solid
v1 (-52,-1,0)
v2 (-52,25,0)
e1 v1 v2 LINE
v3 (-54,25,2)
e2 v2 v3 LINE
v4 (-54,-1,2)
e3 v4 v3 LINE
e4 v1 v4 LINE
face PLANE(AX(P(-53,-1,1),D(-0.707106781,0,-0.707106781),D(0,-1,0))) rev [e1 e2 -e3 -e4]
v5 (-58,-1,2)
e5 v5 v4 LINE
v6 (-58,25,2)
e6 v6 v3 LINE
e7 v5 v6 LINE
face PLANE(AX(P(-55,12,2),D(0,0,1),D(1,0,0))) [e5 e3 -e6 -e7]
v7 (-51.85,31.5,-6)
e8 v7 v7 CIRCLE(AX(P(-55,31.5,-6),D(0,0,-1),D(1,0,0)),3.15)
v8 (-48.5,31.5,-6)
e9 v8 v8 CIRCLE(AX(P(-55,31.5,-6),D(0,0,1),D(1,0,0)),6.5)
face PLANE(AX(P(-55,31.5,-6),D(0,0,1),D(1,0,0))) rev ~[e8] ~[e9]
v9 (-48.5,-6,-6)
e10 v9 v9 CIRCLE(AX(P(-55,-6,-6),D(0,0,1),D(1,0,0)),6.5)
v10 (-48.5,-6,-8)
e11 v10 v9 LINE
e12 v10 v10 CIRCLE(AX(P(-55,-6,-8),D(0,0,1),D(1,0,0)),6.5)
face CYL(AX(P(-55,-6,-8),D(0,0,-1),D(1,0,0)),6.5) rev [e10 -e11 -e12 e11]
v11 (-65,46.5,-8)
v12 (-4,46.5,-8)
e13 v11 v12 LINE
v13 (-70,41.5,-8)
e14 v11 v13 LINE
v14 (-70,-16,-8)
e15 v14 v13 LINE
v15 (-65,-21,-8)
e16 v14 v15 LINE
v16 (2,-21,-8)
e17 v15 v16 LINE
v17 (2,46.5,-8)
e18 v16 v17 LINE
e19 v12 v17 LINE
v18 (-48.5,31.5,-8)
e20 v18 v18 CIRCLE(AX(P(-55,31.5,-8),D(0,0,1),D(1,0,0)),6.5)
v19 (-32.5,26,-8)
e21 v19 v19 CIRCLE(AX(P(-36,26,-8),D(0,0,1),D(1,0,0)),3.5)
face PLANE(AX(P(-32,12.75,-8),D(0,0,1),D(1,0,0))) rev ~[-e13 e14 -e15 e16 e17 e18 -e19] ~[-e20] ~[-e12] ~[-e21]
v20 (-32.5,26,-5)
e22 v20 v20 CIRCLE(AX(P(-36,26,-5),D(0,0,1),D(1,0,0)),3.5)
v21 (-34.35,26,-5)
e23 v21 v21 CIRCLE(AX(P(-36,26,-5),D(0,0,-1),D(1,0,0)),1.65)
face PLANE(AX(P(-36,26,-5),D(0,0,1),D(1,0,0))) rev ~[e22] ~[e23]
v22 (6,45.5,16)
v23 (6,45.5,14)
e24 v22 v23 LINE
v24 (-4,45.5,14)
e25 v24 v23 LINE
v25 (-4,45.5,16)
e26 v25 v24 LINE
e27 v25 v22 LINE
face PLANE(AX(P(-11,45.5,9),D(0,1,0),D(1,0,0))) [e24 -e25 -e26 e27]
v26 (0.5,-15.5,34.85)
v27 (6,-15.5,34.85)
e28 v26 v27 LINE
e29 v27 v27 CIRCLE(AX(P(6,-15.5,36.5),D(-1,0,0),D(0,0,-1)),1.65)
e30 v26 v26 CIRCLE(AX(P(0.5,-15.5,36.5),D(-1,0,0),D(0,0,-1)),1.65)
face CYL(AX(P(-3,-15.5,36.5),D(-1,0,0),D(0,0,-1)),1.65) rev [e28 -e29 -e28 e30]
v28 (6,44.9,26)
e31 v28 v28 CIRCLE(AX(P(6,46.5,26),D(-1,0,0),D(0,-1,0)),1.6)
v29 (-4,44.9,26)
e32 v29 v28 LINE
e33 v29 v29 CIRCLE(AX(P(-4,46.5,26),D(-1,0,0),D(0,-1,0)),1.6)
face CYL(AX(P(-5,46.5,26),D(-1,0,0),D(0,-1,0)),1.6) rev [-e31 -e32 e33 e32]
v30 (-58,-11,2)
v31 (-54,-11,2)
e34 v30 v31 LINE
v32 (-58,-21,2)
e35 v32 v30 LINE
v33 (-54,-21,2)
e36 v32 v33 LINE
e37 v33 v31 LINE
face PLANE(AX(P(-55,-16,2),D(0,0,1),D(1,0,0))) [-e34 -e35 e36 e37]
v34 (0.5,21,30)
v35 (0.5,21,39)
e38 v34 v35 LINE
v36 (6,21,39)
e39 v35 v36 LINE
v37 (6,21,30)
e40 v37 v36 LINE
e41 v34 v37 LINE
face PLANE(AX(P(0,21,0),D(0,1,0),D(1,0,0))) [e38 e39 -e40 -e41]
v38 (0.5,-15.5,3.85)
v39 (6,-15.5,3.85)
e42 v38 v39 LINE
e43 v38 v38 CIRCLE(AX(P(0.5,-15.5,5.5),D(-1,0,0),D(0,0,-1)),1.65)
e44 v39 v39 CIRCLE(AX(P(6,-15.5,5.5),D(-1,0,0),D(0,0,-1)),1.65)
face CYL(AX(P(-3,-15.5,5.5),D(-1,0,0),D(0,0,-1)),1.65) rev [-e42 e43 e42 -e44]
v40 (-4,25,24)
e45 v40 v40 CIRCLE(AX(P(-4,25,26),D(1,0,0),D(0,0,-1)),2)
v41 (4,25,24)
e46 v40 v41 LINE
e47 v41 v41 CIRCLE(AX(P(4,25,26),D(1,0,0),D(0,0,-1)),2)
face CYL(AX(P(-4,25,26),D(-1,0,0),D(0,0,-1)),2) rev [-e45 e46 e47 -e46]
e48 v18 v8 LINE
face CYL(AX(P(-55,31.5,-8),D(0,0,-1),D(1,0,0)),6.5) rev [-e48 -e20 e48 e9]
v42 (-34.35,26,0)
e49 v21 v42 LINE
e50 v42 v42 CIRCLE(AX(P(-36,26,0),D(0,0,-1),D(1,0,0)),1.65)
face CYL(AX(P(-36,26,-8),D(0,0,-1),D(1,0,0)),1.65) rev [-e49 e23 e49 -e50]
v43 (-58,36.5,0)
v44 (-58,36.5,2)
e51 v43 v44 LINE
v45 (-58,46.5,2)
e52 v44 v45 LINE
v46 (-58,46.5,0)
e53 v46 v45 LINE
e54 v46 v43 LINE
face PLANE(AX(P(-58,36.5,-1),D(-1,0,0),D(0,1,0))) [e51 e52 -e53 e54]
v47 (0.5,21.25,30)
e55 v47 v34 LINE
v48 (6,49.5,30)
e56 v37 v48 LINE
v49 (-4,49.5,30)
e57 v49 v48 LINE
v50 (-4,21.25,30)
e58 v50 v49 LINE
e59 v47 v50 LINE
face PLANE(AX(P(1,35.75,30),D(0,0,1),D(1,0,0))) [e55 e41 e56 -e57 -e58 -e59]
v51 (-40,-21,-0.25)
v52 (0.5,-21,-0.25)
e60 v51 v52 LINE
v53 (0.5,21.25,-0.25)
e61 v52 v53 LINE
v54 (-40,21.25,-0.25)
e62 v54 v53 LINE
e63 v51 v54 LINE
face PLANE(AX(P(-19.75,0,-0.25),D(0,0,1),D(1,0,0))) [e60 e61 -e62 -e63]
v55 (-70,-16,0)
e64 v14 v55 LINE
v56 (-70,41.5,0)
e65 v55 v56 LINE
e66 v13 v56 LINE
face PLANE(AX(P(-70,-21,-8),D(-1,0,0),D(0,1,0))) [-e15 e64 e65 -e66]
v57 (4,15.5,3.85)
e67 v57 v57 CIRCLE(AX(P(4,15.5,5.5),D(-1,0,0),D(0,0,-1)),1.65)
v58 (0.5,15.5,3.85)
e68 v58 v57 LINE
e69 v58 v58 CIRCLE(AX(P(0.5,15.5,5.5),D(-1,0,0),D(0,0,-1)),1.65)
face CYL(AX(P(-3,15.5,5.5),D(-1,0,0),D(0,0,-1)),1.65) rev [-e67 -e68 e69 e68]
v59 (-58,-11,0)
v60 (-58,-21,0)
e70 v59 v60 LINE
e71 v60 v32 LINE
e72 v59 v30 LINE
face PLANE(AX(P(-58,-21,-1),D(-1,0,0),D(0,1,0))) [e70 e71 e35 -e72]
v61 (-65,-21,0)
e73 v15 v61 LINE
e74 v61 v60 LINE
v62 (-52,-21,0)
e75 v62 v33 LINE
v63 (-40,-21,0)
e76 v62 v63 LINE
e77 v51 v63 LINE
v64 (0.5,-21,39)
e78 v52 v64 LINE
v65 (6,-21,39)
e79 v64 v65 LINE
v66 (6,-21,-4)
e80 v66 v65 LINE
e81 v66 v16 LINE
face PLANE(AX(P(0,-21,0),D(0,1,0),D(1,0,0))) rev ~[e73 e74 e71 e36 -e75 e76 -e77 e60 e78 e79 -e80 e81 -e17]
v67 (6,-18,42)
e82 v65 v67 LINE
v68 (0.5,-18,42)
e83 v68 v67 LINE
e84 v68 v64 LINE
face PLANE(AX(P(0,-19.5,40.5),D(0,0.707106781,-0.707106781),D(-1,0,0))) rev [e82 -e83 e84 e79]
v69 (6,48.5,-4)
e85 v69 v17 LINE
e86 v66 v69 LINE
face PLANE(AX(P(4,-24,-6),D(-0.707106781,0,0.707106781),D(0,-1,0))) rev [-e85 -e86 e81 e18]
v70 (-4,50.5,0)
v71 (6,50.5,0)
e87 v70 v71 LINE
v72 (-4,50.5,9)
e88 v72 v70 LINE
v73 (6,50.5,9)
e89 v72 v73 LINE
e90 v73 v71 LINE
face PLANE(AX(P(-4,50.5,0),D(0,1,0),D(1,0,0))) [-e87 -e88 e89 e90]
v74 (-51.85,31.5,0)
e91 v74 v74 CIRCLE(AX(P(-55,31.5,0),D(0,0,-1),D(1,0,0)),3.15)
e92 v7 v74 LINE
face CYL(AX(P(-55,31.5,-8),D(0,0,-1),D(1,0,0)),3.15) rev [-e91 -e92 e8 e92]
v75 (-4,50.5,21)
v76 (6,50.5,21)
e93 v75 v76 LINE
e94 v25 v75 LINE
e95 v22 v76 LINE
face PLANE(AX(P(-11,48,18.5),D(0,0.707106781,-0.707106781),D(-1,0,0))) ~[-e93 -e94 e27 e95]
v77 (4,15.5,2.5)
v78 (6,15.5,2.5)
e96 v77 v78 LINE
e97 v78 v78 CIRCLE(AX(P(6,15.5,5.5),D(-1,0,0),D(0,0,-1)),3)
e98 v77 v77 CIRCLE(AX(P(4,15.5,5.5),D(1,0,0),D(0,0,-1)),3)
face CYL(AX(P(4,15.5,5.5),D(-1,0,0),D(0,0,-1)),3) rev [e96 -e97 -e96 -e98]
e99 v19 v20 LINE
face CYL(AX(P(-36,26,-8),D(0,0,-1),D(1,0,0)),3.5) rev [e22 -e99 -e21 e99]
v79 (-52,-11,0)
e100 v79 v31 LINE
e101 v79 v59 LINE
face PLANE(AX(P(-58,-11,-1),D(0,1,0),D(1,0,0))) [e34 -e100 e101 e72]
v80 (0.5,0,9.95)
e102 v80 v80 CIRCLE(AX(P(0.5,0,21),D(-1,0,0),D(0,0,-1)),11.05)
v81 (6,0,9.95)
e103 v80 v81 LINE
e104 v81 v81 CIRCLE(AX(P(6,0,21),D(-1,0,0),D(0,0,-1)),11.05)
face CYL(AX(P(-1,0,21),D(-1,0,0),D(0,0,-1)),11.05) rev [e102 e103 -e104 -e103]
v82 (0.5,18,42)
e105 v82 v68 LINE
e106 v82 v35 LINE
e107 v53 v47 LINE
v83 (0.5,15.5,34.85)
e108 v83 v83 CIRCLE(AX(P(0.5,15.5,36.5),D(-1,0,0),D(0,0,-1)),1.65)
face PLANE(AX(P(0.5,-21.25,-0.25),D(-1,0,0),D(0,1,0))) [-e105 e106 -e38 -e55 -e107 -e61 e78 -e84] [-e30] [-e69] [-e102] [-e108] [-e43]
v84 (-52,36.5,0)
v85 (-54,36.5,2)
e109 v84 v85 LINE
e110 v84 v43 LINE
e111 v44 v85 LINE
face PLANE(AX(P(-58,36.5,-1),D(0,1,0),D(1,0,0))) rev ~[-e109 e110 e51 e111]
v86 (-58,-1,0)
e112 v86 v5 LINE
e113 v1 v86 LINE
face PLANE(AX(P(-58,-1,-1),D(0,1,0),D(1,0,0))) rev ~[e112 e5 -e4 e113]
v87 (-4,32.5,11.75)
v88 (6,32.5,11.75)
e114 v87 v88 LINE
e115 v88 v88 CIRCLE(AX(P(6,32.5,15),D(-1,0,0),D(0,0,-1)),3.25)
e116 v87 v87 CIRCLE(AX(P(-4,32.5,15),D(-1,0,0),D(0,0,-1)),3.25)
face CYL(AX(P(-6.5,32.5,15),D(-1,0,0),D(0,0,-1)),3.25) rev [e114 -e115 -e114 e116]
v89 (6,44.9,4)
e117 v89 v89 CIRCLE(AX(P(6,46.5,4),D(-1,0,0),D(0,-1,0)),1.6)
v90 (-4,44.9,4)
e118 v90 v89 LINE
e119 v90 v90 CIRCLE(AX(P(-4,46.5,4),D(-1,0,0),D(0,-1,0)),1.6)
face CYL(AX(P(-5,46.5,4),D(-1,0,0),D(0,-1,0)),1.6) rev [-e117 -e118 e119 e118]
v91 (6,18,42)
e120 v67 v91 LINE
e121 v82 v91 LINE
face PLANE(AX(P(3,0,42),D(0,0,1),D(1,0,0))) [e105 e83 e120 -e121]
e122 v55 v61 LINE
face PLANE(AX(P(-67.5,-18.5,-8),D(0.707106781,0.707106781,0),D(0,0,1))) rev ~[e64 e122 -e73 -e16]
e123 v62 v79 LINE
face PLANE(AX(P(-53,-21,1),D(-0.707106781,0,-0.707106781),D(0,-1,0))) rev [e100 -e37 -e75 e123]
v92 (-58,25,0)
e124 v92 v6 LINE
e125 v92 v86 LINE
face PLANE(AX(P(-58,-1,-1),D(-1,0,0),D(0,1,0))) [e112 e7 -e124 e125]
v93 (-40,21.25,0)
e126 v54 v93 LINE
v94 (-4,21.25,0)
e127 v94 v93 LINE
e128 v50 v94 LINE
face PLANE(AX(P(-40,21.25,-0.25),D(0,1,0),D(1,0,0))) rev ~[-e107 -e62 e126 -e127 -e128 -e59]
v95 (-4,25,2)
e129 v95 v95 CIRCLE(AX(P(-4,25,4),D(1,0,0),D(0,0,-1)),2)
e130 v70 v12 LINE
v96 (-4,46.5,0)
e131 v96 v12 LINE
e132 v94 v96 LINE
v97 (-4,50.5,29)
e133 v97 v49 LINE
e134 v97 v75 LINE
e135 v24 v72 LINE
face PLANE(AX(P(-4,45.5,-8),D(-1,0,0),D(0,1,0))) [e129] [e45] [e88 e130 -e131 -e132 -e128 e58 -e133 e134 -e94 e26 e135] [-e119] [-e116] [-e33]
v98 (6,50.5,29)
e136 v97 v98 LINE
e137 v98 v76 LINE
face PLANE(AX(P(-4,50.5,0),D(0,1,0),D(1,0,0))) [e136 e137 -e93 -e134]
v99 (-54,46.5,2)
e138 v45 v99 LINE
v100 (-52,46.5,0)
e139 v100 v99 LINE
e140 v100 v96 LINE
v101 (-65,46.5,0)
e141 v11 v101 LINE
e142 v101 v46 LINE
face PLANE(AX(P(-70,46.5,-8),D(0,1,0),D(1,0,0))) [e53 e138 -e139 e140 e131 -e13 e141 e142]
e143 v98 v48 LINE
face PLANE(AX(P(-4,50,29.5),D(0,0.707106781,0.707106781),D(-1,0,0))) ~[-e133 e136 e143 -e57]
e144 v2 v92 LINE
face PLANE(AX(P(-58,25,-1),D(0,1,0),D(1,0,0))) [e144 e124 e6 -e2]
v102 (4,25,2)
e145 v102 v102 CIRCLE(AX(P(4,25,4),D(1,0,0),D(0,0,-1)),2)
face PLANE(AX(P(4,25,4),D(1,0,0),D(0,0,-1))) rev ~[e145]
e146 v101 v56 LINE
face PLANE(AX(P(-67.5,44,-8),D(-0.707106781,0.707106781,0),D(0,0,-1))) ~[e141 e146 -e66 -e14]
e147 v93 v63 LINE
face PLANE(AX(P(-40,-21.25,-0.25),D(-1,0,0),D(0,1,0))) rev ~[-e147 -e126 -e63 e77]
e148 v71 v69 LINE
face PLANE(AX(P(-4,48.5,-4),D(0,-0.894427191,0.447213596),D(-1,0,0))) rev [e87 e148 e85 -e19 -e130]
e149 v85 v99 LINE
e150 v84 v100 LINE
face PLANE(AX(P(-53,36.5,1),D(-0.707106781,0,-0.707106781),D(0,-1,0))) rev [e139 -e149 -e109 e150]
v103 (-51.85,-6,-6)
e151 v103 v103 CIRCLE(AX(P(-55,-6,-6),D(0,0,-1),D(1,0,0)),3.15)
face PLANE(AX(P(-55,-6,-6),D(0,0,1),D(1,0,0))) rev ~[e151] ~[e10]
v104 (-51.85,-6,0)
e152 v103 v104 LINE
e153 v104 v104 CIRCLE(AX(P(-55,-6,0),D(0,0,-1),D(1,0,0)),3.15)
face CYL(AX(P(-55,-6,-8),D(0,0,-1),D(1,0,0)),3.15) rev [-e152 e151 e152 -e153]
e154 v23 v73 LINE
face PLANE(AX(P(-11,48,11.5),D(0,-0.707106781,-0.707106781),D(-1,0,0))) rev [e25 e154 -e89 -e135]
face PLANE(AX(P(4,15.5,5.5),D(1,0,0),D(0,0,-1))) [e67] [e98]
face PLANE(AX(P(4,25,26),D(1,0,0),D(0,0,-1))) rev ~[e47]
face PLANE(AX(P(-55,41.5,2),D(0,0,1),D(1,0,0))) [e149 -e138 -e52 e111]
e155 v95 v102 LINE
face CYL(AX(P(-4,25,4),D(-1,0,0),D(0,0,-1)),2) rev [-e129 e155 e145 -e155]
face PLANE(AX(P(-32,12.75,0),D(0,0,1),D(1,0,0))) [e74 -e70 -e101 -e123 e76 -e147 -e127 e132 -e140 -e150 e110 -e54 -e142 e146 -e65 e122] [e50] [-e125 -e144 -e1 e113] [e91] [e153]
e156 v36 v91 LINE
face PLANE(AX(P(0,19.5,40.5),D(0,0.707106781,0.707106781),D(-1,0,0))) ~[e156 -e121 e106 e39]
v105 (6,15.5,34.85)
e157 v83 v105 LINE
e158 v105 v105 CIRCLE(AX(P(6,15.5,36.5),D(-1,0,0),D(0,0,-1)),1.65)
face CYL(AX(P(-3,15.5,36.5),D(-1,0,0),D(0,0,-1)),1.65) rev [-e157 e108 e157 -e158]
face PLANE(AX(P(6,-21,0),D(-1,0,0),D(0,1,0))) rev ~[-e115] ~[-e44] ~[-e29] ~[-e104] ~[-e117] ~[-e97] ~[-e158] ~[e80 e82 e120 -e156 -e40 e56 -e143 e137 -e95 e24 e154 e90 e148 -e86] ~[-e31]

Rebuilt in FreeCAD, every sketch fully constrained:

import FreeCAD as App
import Part
import Sketcher

V = App.Vector
Q = App.Units.Quantity


def edges_at(feature, points):
    """Names of the edges that pass closest to the given points."""
    edges = feature.Shape.Edges
    near = lambda p: min(range(len(edges)), key=lambda i: edges[i].distToShape(Part.Vertex(*p))[0])
    return sorted({f"Edge{near(p) + 1}" for p in points})

doc = App.newDocument("Part")
body = doc.addObject("PartDesign::Body", "Body")

sketch1 = body.newObject("Sketcher::SketchObject", "Sketch")
sketch1.AttachmentSupport = (doc.getObject("XY_Plane"), [""])
sketch1.MapMode = "FlatFace"
sketch1.AttachmentOffset = App.Placement(V(0, 0, 9), App.Rotation())
sketch1.addGeometry([
    Part.LineSegment(V(-16, 95, 0), V(-16, 67, 0)),
    Part.LineSegment(V(-16, 67, 0), V(3, 67, 0)),
    Part.LineSegment(V(3, 67, 0), V(3, 95, 0)),
    Part.LineSegment(V(3, 95, 0), V(-16, 95, 0)),
], False)
sketch1.addConstraint([
    Sketcher.Constraint("Coincident", 0, 2, 1, 1),
    Sketcher.Constraint("Coincident", 1, 2, 2, 1),
    Sketcher.Constraint("Coincident", 2, 2, 3, 1),
    Sketcher.Constraint("Coincident", 3, 2, 0, 1),
    Sketcher.Constraint("Vertical", 0),
    Sketcher.Constraint("Horizontal", 1),
    Sketcher.Constraint("Vertical", 2),
    Sketcher.Constraint("Horizontal", 3),
    Sketcher.Constraint("DistanceX", 1, 1, 1, 2, Q("19 mm")),
    Sketcher.Constraint("DistanceY", 0, 2, 0, 1, Q("28 mm")),
    Sketcher.Constraint("DistanceX", 0, 2, -1, 1, Q("16 mm")),
    Sketcher.Constraint("DistanceY", -1, 1, 0, 2, Q("67 mm")),
])
pad1 = body.newObject("PartDesign::Pad", "Pad")
pad1.Profile = sketch1
pad1.Length = 12
doc.recompute()

chamfer = body.newObject("PartDesign::Chamfer", "Chamfer")
chamfer.Base = (pad1, edges_at(pad1, [(-6.5, 67, 9), (-6.5, 67, 21)]))
chamfer.Size = 5
body2 = doc.addObject("PartDesign::Body", "Body001")
doc.recompute()

body.Placement = App.Placement(V(5, -21.5, 0), App.Rotation(V(0, 0, 1), 0))
boolean = body2.newObject("PartDesign::Boolean", "Boolean")
boolean.Type = "Fuse"
boolean.addObjects([body])
body3 = doc.addObject("PartDesign::Body", "Body002")

sketch2 = body3.newObject("Sketcher::SketchObject", "Sketch001")
sketch2.AttachmentSupport = (doc.getObject("XY_Plane002"), [""])
sketch2.MapMode = "FlatFace"
sketch2.AttachmentOffset = App.Placement(V(0, 0, -8), App.Rotation())
sketch2.addGeometry(Part.Circle(V(-36, 26, 0), V(0, 0, 1), 3.5), False)
sketch2.addConstraint([
    Sketcher.Constraint("Diameter", 0, Q("7 mm")),
    Sketcher.Constraint("DistanceX", 0, 3, -1, 1, Q("36 mm")),
    Sketcher.Constraint("DistanceY", -1, 1, 0, 3, Q("26 mm")),
])
pad2 = body3.newObject("PartDesign::Pad", "Pad001")
pad2.Profile = sketch2
pad2.Length = 3
body4 = doc.addObject("PartDesign::Body", "Body003")

sketch3 = body4.newObject("Sketcher::SketchObject", "Sketch002")
sketch3.AttachmentSupport = (doc.getObject("XY_Plane003"), [""])
sketch3.MapMode = "FlatFace"
sketch3.AttachmentOffset = App.Placement(V(0, 0, -8), App.Rotation())
sketch3.addGeometry(Part.Circle(V(-36, 26, 0), V(0, 0, 1), 1.65), False)
sketch3.addConstraint([
    Sketcher.Constraint("Diameter", 0, Q("3.3 mm")),
    Sketcher.Constraint("DistanceX", 0, 3, -1, 1, Q("36 mm")),
    Sketcher.Constraint("DistanceY", -1, 1, 0, 3, Q("26 mm")),
])
pad3 = body4.newObject("PartDesign::Pad", "Pad002")
pad3.Profile = sketch3
pad3.Length = 16
doc.recompute()

boolean2 = body4.newObject("PartDesign::Boolean", "Boolean001")
boolean2.Type = "Fuse"
boolean2.addObjects([body3])
body5 = doc.addObject("PartDesign::Body", "Body004")

sketch4 = body5.newObject("Sketcher::SketchObject", "Sketch003")
sketch4.AttachmentSupport = (doc.getObject("YZ_Plane004"), [""])
sketch4.MapMode = "FlatFace"
sketch4.AttachmentOffset = App.Placement(V(0, 0, -4), App.Rotation())
sketch4.addGeometry(Part.Circle(V(25, 4, 0), V(0, 0, 1), 2), False)
sketch4.addConstraint([
    Sketcher.Constraint("Diameter", 0, Q("4 mm")),
    Sketcher.Constraint("DistanceX", -1, 1, 0, 3, Q("25 mm")),
    Sketcher.Constraint("DistanceY", -1, 1, 0, 3, Q("4 mm")),
])
pad4 = body5.newObject("PartDesign::Pad", "Pad003")
pad4.Profile = sketch4
pad4.Length = 8
body6 = doc.addObject("PartDesign::Body", "Body005")
body6.AllowCompound = True

sketch5 = body6.newObject("Sketcher::SketchObject", "Sketch004")
sketch5.AttachmentSupport = (doc.getObject("YZ_Plane005"), [""])
sketch5.MapMode = "FlatFace"
sketch5.AttachmentOffset = App.Placement(V(0, 0, -4), App.Rotation())
sketch5.addGeometry(Part.Circle(V(25, 26, 0), V(0, 0, 1), 2), False)
sketch5.addConstraint([
    Sketcher.Constraint("Diameter", 0, Q("4 mm")),
    Sketcher.Constraint("DistanceX", -1, 1, 0, 3, Q("25 mm")),
    Sketcher.Constraint("DistanceY", -1, 1, 0, 3, Q("26 mm")),
])
pad5 = body6.newObject("PartDesign::Pad", "Pad004")
pad5.Profile = sketch5
pad5.Length = 8
doc.recompute()

boolean3 = body6.newObject("PartDesign::Boolean", "Boolean002")
boolean3.Type = "Fuse"
boolean3.addObjects([body5])
body7 = doc.addObject("PartDesign::Body", "Body006")

sketch6 = body7.newObject("Sketcher::SketchObject", "Sketch005")
sketch6.AttachmentSupport = (doc.getObject("XY_Plane006"), [""])
sketch6.MapMode = "FlatFace"
sketch6.AttachmentOffset = App.Placement(V(0, 0, -10), App.Rotation())
sketch6.addGeometry(Part.Circle(V(-55, 31.5, 0), V(0, 0, 1), 6.5), False)
sketch6.addConstraint([
    Sketcher.Constraint("Diameter", 0, Q("13 mm")),
    Sketcher.Constraint("DistanceX", 0, 3, -1, 1, Q("55 mm")),
    Sketcher.Constraint("DistanceY", -1, 1, 0, 3, Q("31.5 mm")),
])
pad6 = body7.newObject("PartDesign::Pad", "Pad005")
pad6.Profile = sketch6
pad6.Length = 2
body8 = doc.addObject("PartDesign::Body", "Body007")

sketch7 = body8.newObject("Sketcher::SketchObject", "Sketch006")
sketch7.AttachmentSupport = (doc.getObject("XY_Plane007"), [""])
sketch7.MapMode = "FlatFace"
sketch7.AttachmentOffset = App.Placement(V(0, 0, -10), App.Rotation())
sketch7.addGeometry(Part.Circle(V(-55, 31.5, 0), V(0, 0, 1), 3.15), False)
sketch7.addConstraint([
    Sketcher.Constraint("Diameter", 0, Q("6.3 mm")),
    Sketcher.Constraint("DistanceX", 0, 3, -1, 1, Q("55 mm")),
    Sketcher.Constraint("DistanceY", -1, 1, 0, 3, Q("31.5 mm")),
])
pad7 = body8.newObject("PartDesign::Pad", "Pad006")
pad7.Profile = sketch7
pad7.Length = 10
body9 = doc.addObject("PartDesign::Body", "Body008")

sketch8 = body9.newObject("Sketcher::SketchObject", "Sketch007")
sketch8.AttachmentSupport = (doc.getObject("XY_Plane008"), [""])
sketch8.MapMode = "FlatFace"
sketch8.AttachmentOffset = App.Placement(V(0, 0, -10), App.Rotation())
sketch8.addGeometry(Part.Circle(V(-55, -6, 0), V(0, 0, 1), 3.15), False)
sketch8.addConstraint([
    Sketcher.Constraint("Diameter", 0, Q("6.3 mm")),
    Sketcher.Constraint("DistanceX", 0, 3, -1, 1, Q("55 mm")),
    Sketcher.Constraint("DistanceY", 0, 3, -1, 1, Q("6 mm")),
])
pad8 = body9.newObject("PartDesign::Pad", "Pad007")
pad8.Profile = sketch8
pad8.Length = 10
body10 = doc.addObject("PartDesign::Body", "Body009")
body10.AllowCompound = True

sketch9 = body10.newObject("Sketcher::SketchObject", "Sketch008")
sketch9.AttachmentSupport = (doc.getObject("XY_Plane009"), [""])
sketch9.MapMode = "FlatFace"
sketch9.AttachmentOffset = App.Placement(V(0, 0, -10), App.Rotation())
sketch9.addGeometry(Part.Circle(V(-55, -6, 0), V(0, 0, 1), 6.5), False)
sketch9.addConstraint([
    Sketcher.Constraint("Diameter", 0, Q("13 mm")),
    Sketcher.Constraint("DistanceX", 0, 3, -1, 1, Q("55 mm")),
    Sketcher.Constraint("DistanceY", 0, 3, -1, 1, Q("6 mm")),
])
pad9 = body10.newObject("PartDesign::Pad", "Pad008")
pad9.Profile = sketch9
pad9.Length = 2
doc.recompute()

boolean4 = body10.newObject("PartDesign::Boolean", "Boolean003")
boolean4.Type = "Fuse"
boolean4.addObjects([body7])
doc.recompute()

boolean5 = body10.newObject("PartDesign::Boolean", "Boolean004")
boolean5.Type = "Fuse"
boolean5.addObjects([body8])
doc.recompute()

boolean6 = body10.newObject("PartDesign::Boolean", "Boolean005")
boolean6.Type = "Fuse"
boolean6.addObjects([body9])
body11 = doc.addObject("PartDesign::Body", "Body010")
body11.AllowCompound = True
doc.recompute()

body10.Placement = App.Placement(V(0, 0, 2), App.Rotation(V(0, 0, 1), 0))
boolean7 = body11.newObject("PartDesign::Boolean", "Boolean006")
boolean7.Type = "Fuse"
boolean7.addObjects([body10])
body12 = doc.addObject("PartDesign::Body", "Body011")

sketch10 = body12.newObject("Sketcher::SketchObject", "Sketch009")
sketch10.AttachmentSupport = (doc.getObject("XY_Plane011"), [""])
sketch10.MapMode = "FlatFace"
sketch10.AttachmentOffset = App.Placement(V(0, 0, -1), App.Rotation())
sketch10.addGeometry([
    Part.LineSegment(V(-58, 25, 0), V(-58, -1, 0)),
    Part.LineSegment(V(-58, -1, 0), V(-52, -1, 0)),
    Part.LineSegment(V(-52, -1, 0), V(-52, 25, 0)),
    Part.LineSegment(V(-52, 25, 0), V(-58, 25, 0)),
], False)
sketch10.addConstraint([
    Sketcher.Constraint("Coincident", 0, 2, 1, 1),
    Sketcher.Constraint("Coincident", 1, 2, 2, 1),
    Sketcher.Constraint("Coincident", 2, 2, 3, 1),
    Sketcher.Constraint("Coincident", 3, 2, 0, 1),
    Sketcher.Constraint("Vertical", 0),
    Sketcher.Constraint("Horizontal", 1),
    Sketcher.Constraint("Vertical", 2),
    Sketcher.Constraint("Horizontal", 3),
    Sketcher.Constraint("DistanceX", 1, 1, 1, 2, Q("6 mm")),
    Sketcher.Constraint("DistanceY", 0, 2, 0, 1, Q("26 mm")),
    Sketcher.Constraint("DistanceX", 0, 2, -1, 1, Q("58 mm")),
    Sketcher.Constraint("DistanceY", 0, 2, -1, 1, Q("1 mm")),
])
pad10 = body12.newObject("PartDesign::Pad", "Pad009")
pad10.Profile = sketch10
pad10.Length = 3
body13 = doc.addObject("PartDesign::Body", "Body012")

sketch11 = body13.newObject("Sketcher::SketchObject", "Sketch010")
sketch11.AttachmentSupport = (doc.getObject("XY_Plane012"), [""])
sketch11.MapMode = "FlatFace"
sketch11.AttachmentOffset = App.Placement(V(0, 0, -1), App.Rotation())
sketch11.addGeometry([
    Part.LineSegment(V(-58, -11, 0), V(-58, -21, 0)),
    Part.LineSegment(V(-58, -21, 0), V(-52, -21, 0)),
    Part.LineSegment(V(-52, -21, 0), V(-52, -11, 0)),
    Part.LineSegment(V(-52, -11, 0), V(-58, -11, 0)),
], False)
sketch11.addConstraint([
    Sketcher.Constraint("Coincident", 0, 2, 1, 1),
    Sketcher.Constraint("Coincident", 1, 2, 2, 1),
    Sketcher.Constraint("Coincident", 2, 2, 3, 1),
    Sketcher.Constraint("Coincident", 3, 2, 0, 1),
    Sketcher.Constraint("Vertical", 0),
    Sketcher.Constraint("Horizontal", 1),
    Sketcher.Constraint("Vertical", 2),
    Sketcher.Constraint("Horizontal", 3),
    Sketcher.Constraint("DistanceX", 1, 1, 1, 2, Q("6 mm")),
    Sketcher.Constraint("DistanceY", 0, 2, 0, 1, Q("10 mm")),
    Sketcher.Constraint("DistanceX", 0, 2, -1, 1, Q("58 mm")),
    Sketcher.Constraint("DistanceY", 0, 2, -1, 1, Q("21 mm")),
])
pad11 = body13.newObject("PartDesign::Pad", "Pad010")
pad11.Profile = sketch11
pad11.Length = 3
body14 = doc.addObject("PartDesign::Body", "Body013")
body14.AllowCompound = True

sketch12 = body14.newObject("Sketcher::SketchObject", "Sketch011")
sketch12.AttachmentSupport = (doc.getObject("XY_Plane013"), [""])
sketch12.MapMode = "FlatFace"
sketch12.AttachmentOffset = App.Placement(V(0, 0, -1), App.Rotation())
sketch12.addGeometry([
    Part.LineSegment(V(-58, 46.5, 0), V(-58, 36.5, 0)),
    Part.LineSegment(V(-58, 36.5, 0), V(-52, 36.5, 0)),
    Part.LineSegment(V(-52, 36.5, 0), V(-52, 46.5, 0)),
    Part.LineSegment(V(-52, 46.5, 0), V(-58, 46.5, 0)),
], False)
sketch12.addConstraint([
    Sketcher.Constraint("Coincident", 0, 2, 1, 1),
    Sketcher.Constraint("Coincident", 1, 2, 2, 1),
    Sketcher.Constraint("Coincident", 2, 2, 3, 1),
    Sketcher.Constraint("Coincident", 3, 2, 0, 1),
    Sketcher.Constraint("Vertical", 0),
    Sketcher.Constraint("Horizontal", 1),
    Sketcher.Constraint("Vertical", 2),
    Sketcher.Constraint("Horizontal", 3),
    Sketcher.Constraint("DistanceX", 1, 1, 1, 2, Q("6 mm")),
    Sketcher.Constraint("DistanceY", 0, 2, 0, 1, Q("10 mm")),
    Sketcher.Constraint("DistanceX", 0, 2, -1, 1, Q("58 mm")),
    Sketcher.Constraint("DistanceY", -1, 1, 0, 2, Q("36.5 mm")),
])
pad12 = body14.newObject("PartDesign::Pad", "Pad011")
pad12.Profile = sketch12
pad12.Length = 3
doc.recompute()

boolean8 = body14.newObject("PartDesign::Boolean", "Boolean007")
boolean8.Type = "Fuse"
boolean8.addObjects([body12])
doc.recompute()

boolean9 = body14.newObject("PartDesign::Boolean", "Boolean008")
boolean9.Type = "Fuse"
boolean9.addObjects([body13])
doc.recompute()

chamfer2 = body14.newObject("PartDesign::Chamfer", "Chamfer001")
chamfer2.Base = (boolean9, edges_at(boolean9, [(-52, 41.5, 2), (-52, 12, 2), (-52, -16, 2)]))
chamfer2.Size = 2
body15 = doc.addObject("PartDesign::Body", "Body014")

sketch13 = body15.newObject("Sketcher::SketchObject", "Sketch012")
sketch13.AttachmentSupport = (doc.getObject("YZ_Plane014"), [""])
sketch13.MapMode = "FlatFace"
sketch13.AttachmentOffset = App.Placement(V(0, 0, -24), App.Rotation())
sketch13.addGeometry(Part.Circle(V(45, 4, 0), V(0, 0, 1), 1.6), False)
sketch13.addConstraint([
    Sketcher.Constraint("Diameter", 0, Q("3.2 mm")),
    Sketcher.Constraint("DistanceX", -1, 1, 0, 3, Q("45 mm")),
    Sketcher.Constraint("DistanceY", -1, 1, 0, 3, Q("4 mm")),
])
pad13 = body15.newObject("PartDesign::Pad", "Pad012")
pad13.Profile = sketch13
pad13.Length = 12
body16 = doc.addObject("PartDesign::Body", "Body015")
body16.AllowCompound = True

sketch14 = body16.newObject("Sketcher::SketchObject", "Sketch013")
sketch14.AttachmentSupport = (doc.getObject("YZ_Plane015"), [""])
sketch14.MapMode = "FlatFace"
sketch14.AttachmentOffset = App.Placement(V(0, 0, -24), App.Rotation())
sketch14.addGeometry(Part.Circle(V(45, 26, 0), V(0, 0, 1), 1.6), False)
sketch14.addConstraint([
    Sketcher.Constraint("Diameter", 0, Q("3.2 mm")),
    Sketcher.Constraint("DistanceX", -1, 1, 0, 3, Q("45 mm")),
    Sketcher.Constraint("DistanceY", -1, 1, 0, 3, Q("26 mm")),
])
pad14 = body16.newObject("PartDesign::Pad", "Pad013")
pad14.Profile = sketch14
pad14.Length = 12
doc.recompute()

boolean10 = body16.newObject("PartDesign::Boolean", "Boolean009")
boolean10.Type = "Fuse"
boolean10.addObjects([body15])
body17 = doc.addObject("PartDesign::Body", "Body016")
body17.AllowCompound = True
doc.recompute()

body16.Placement = App.Placement(V(19, 1.5, 0), App.Rotation(V(0, 0, 1), 0))
boolean11 = body17.newObject("PartDesign::Boolean", "Boolean010")
boolean11.Type = "Fuse"
boolean11.addObjects([body16])
body18 = doc.addObject("PartDesign::Body", "Body017")

sketch15 = body18.newObject("Sketcher::SketchObject", "Sketch014")
sketch15.AttachmentSupport = (doc.getObject("YZ_Plane017"), [""])
sketch15.MapMode = "FlatFace"
sketch15.AttachmentOffset = App.Placement(V(0, 0, -6.5), App.Rotation())
sketch15.addGeometry(Part.Circle(V(32.5, 15, 0), V(0, 0, 1), 3.25), False)
sketch15.addConstraint([
    Sketcher.Constraint("Diameter", 0, Q("6.5 mm")),
    Sketcher.Constraint("DistanceY", -1, 1, 0, 3, Q("15 mm")),
    Sketcher.Constraint("DistanceX", -1, 1, 0, 3, Q("32.5 mm")),
])
pad15 = body18.newObject("PartDesign::Pad", "Pad014")
pad15.Profile = sketch15
pad15.Length = 14
body19 = doc.addObject("PartDesign::Body", "Body018")

sketch16 = body19.newObject("Sketcher::SketchObject", "Sketch015")
sketch16.AttachmentSupport = (doc.getObject("XY_Plane018"), [""])
sketch16.MapMode = "FlatFace"
sketch16.AttachmentOffset = App.Placement(V(0, 0, -0.25), App.Rotation())
sketch16.addGeometry([
    Part.LineSegment(V(-40, 21.25, 0), V(-40, -21.25, 0)),
    Part.LineSegment(V(-40, -21.25, 0), V(0.5, -21.25, 0)),
    Part.LineSegment(V(0.5, -21.25, 0), V(0.5, 21.25, 0)),
    Part.LineSegment(V(0.5, 21.25, 0), V(-40, 21.25, 0)),
], False)
sketch16.addConstraint([
    Sketcher.Constraint("Coincident", 0, 2, 1, 1),
    Sketcher.Constraint("Coincident", 1, 2, 2, 1),
    Sketcher.Constraint("Coincident", 2, 2, 3, 1),
    Sketcher.Constraint("Coincident", 3, 2, 0, 1),
    Sketcher.Constraint("Vertical", 0),
    Sketcher.Constraint("Horizontal", 1),
    Sketcher.Constraint("Vertical", 2),
    Sketcher.Constraint("Horizontal", 3),
    Sketcher.Constraint("DistanceX", 1, 1, 1, 2, Q("40.5 mm")),
    Sketcher.Constraint("DistanceY", 0, 2, 0, 1, Q("42.5 mm")),
    Sketcher.Constraint("DistanceX", 0, 2, -1, 1, Q("40 mm")),
    Sketcher.Constraint("DistanceY", 0, 2, -1, 1, Q("21.25 mm")),
])
pad16 = body19.newObject("PartDesign::Pad", "Pad015")
pad16.Profile = sketch16
pad16.Length = 42.5
body20 = doc.addObject("PartDesign::Body", "Body019")

sketch17 = body20.newObject("Sketcher::SketchObject", "Sketch016")
sketch17.AttachmentSupport = (doc.getObject("XY_Plane019"), [""])
sketch17.MapMode = "FlatFace"
sketch17.AttachmentOffset = App.Placement(V(0, 0, -14), App.Rotation())
sketch17.addGeometry([
    Part.LineSegment(V(2, 58, 0), V(2, -24, 0)),
    Part.LineSegment(V(2, -24, 0), V(12, -24, 0)),
    Part.LineSegment(V(12, -24, 0), V(12, 58, 0)),
    Part.LineSegment(V(12, 58, 0), V(2, 58, 0)),
], False)
sketch17.addConstraint([
    Sketcher.Constraint("Coincident", 0, 2, 1, 1),
    Sketcher.Constraint("Coincident", 1, 2, 2, 1),
    Sketcher.Constraint("Coincident", 2, 2, 3, 1),
    Sketcher.Constraint("Coincident", 3, 2, 0, 1),
    Sketcher.Constraint("Vertical", 0),
    Sketcher.Constraint("Horizontal", 1),
    Sketcher.Constraint("Vertical", 2),
    Sketcher.Constraint("Horizontal", 3),
    Sketcher.Constraint("DistanceX", 1, 1, 1, 2, Q("10 mm")),
    Sketcher.Constraint("DistanceY", 0, 2, 0, 1, Q("82 mm")),
    Sketcher.Constraint("DistanceX", -1, 1, 0, 2, Q("2 mm")),
    Sketcher.Constraint("DistanceY", 0, 2, -1, 1, Q("24 mm")),
])
pad17 = body20.newObject("PartDesign::Pad", "Pad016")
pad17.Profile = sketch17
pad17.Length = 10
doc.recompute()

chamfer3 = body20.newObject("PartDesign::Chamfer", "Chamfer002")
chamfer3.Base = (pad17, edges_at(pad17, [(2, 17, -4)]))
chamfer3.Size = 4
body21 = doc.addObject("PartDesign::Body", "Body020")

sketch18 = body21.newObject("Sketcher::SketchObject", "Sketch017")
sketch18.AttachmentSupport = (doc.getObject("XY_Plane020"), [""])
sketch18.MapMode = "FlatFace"
sketch18.AttachmentOffset = App.Placement(V(0, 0, -8), App.Rotation())
sketch18.addGeometry([
    Part.LineSegment(V(-4, 49, 0), V(-4, 44, 0)),
    Part.LineSegment(V(-4, 44, 0), V(6, 44, 0)),
    Part.LineSegment(V(6, 44, 0), V(6, 49, 0)),
    Part.LineSegment(V(6, 49, 0), V(-4, 49, 0)),
], False)
sketch18.addConstraint([
    Sketcher.Constraint("Coincident", 0, 2, 1, 1),
    Sketcher.Constraint("Coincident", 1, 2, 2, 1),
    Sketcher.Constraint("Coincident", 2, 2, 3, 1),
    Sketcher.Constraint("Coincident", 3, 2, 0, 1),
    Sketcher.Constraint("Vertical", 0),
    Sketcher.Constraint("Horizontal", 1),
    Sketcher.Constraint("Vertical", 2),
    Sketcher.Constraint("Horizontal", 3),
    Sketcher.Constraint("DistanceX", 1, 1, 1, 2, Q("10 mm")),
    Sketcher.Constraint("DistanceY", 0, 2, 0, 1, Q("5 mm")),
    Sketcher.Constraint("DistanceX", 0, 2, -1, 1, Q("4 mm")),
    Sketcher.Constraint("DistanceY", -1, 1, 0, 2, Q("44 mm")),
])
pad18 = body21.newObject("PartDesign::Pad", "Pad017")
pad18.Profile = sketch18
pad18.Length = 10
doc.recompute()

chamfer4 = body21.newObject("PartDesign::Chamfer", "Chamfer003")
chamfer4.Base = (pad18, edges_at(pad18, [(1, 49, -8)]))
chamfer4.ChamferType = "Two distances"
chamfer4.Size = 8
chamfer4.Size2 = 4
body22 = doc.addObject("PartDesign::Body", "Body021")
doc.recompute()

body21.Placement = App.Placement(V(0, 1.5, 0), App.Rotation(V(0, 0, 1), 0))
boolean12 = body22.newObject("PartDesign::Boolean", "Boolean011")
boolean12.Type = "Fuse"
boolean12.addObjects([body21])
body23 = doc.addObject("PartDesign::Body", "Body022")

sketch19 = body23.newObject("Sketcher::SketchObject", "Sketch018")
sketch19.AttachmentSupport = (doc.getObject("XY_Plane022"), [""])
sketch19.MapMode = "FlatFace"
sketch19.AttachmentOffset = App.Placement(V(0, 0, -8), App.Rotation())
sketch19.addGeometry([
    Part.LineSegment(V(-70, 46.5, 0), V(-70, -21, 0)),
    Part.LineSegment(V(-70, -21, 0), V(6, -21, 0)),
    Part.LineSegment(V(6, -21, 0), V(6, 46.5, 0)),
    Part.LineSegment(V(6, 46.5, 0), V(-70, 46.5, 0)),
], False)
sketch19.addConstraint([
    Sketcher.Constraint("Coincident", 0, 2, 1, 1),
    Sketcher.Constraint("Coincident", 1, 2, 2, 1),
    Sketcher.Constraint("Coincident", 2, 2, 3, 1),
    Sketcher.Constraint("Coincident", 3, 2, 0, 1),
    Sketcher.Constraint("Vertical", 0),
    Sketcher.Constraint("Horizontal", 1),
    Sketcher.Constraint("Vertical", 2),
    Sketcher.Constraint("Horizontal", 3),
    Sketcher.Constraint("DistanceX", 1, 1, 1, 2, Q("76 mm")),
    Sketcher.Constraint("DistanceY", 0, 2, 0, 1, Q("67.5 mm")),
    Sketcher.Constraint("DistanceX", 0, 2, -1, 1, Q("70 mm")),
    Sketcher.Constraint("DistanceY", 0, 2, -1, 1, Q("21 mm")),
])
pad19 = body23.newObject("PartDesign::Pad", "Pad018")
pad19.Profile = sketch19
pad19.Length = 8
body24 = doc.addObject("PartDesign::Body", "Body023")

sketch20 = body24.newObject("Sketcher::SketchObject", "Sketch019")
sketch20.AttachmentSupport = (doc.getObject("YZ_Plane023"), [""])
sketch20.MapMode = "FlatFace"
sketch20.AttachmentOffset = App.Placement(V(0, 0, -1), App.Rotation())
sketch20.addGeometry(Part.Circle(V(0, 21, 0), V(0, 0, 1), 11.05), False)
sketch20.addConstraint([
    Sketcher.Constraint("PointOnObject", 0, 3, -2),
    Sketcher.Constraint("Diameter", 0, Q("22.1 mm")),
    Sketcher.Constraint("DistanceY", -1, 1, 0, 3, Q("21 mm")),
])
pad20 = body24.newObject("PartDesign::Pad", "Pad019")
pad20.Profile = sketch20
pad20.Length = 23
body25 = doc.addObject("PartDesign::Body", "Body024")

sketch21 = body25.newObject("Sketcher::SketchObject", "Sketch020")
sketch21.AttachmentSupport = (doc.getObject("YZ_Plane024"), [""])
sketch21.MapMode = "FlatFace"
sketch21.AttachmentOffset = App.Placement(V(0, 0, 4), App.Rotation())
sketch21.addGeometry(Part.Circle(V(15.5, 5.5, 0), V(0, 0, 1), 3), False)
sketch21.addConstraint([
    Sketcher.Constraint("Diameter", 0, Q("6 mm")),
    Sketcher.Constraint("DistanceX", -1, 1, 0, 3, Q("15.5 mm")),
    Sketcher.Constraint("DistanceY", -1, 1, 0, 3, Q("5.5 mm")),
])
pad21 = body25.newObject("PartDesign::Pad", "Pad020")
pad21.Profile = sketch21
pad21.Length = 10
body26 = doc.addObject("PartDesign::Body", "Body025")

sketch22 = body26.newObject("Sketcher::SketchObject", "Sketch021")
sketch22.AttachmentSupport = (doc.getObject("YZ_Plane025"), [""])
sketch22.MapMode = "FlatFace"
sketch22.AttachmentOffset = App.Placement(V(0, 0, 13), App.Rotation())
sketch22.addGeometry(Part.Circle(V(-15.5, 36.5, 0), V(0, 0, 1), 1.65), False)
sketch22.addConstraint([
    Sketcher.Constraint("Diameter", 0, Q("3.3 mm")),
    Sketcher.Constraint("DistanceX", 0, 3, -1, 1, Q("15.5 mm")),
    Sketcher.Constraint("DistanceY", -1, 1, 0, 3, Q("36.5 mm")),
])
pad22 = body26.newObject("PartDesign::Pad", "Pad021")
pad22.Profile = sketch22
pad22.Length = 10
body27 = doc.addObject("PartDesign::Body", "Body026")

sketch23 = body27.newObject("Sketcher::SketchObject", "Sketch022")
sketch23.AttachmentSupport = (doc.getObject("YZ_Plane026"), [""])
sketch23.MapMode = "FlatFace"
sketch23.AttachmentOffset = App.Placement(V(0, 0, 13), App.Rotation())
sketch23.addGeometry(Part.Circle(V(-15.5, 5.5, 0), V(0, 0, 1), 1.65), False)
sketch23.addConstraint([
    Sketcher.Constraint("Diameter", 0, Q("3.3 mm")),
    Sketcher.Constraint("DistanceX", 0, 3, -1, 1, Q("15.5 mm")),
    Sketcher.Constraint("DistanceY", -1, 1, 0, 3, Q("5.5 mm")),
])
pad23 = body27.newObject("PartDesign::Pad", "Pad022")
pad23.Profile = sketch23
pad23.Length = 10
body28 = doc.addObject("PartDesign::Body", "Body027")

sketch24 = body28.newObject("Sketcher::SketchObject", "Sketch023")
sketch24.AttachmentSupport = (doc.getObject("YZ_Plane027"), [""])
sketch24.MapMode = "FlatFace"
sketch24.AttachmentOffset = App.Placement(V(0, 0, 13), App.Rotation())
sketch24.addGeometry(Part.Circle(V(15.5, 5.5, 0), V(0, 0, 1), 1.65), False)
sketch24.addConstraint([
    Sketcher.Constraint("Diameter", 0, Q("3.3 mm")),
    Sketcher.Constraint("DistanceX", -1, 1, 0, 3, Q("15.5 mm")),
    Sketcher.Constraint("DistanceY", -1, 1, 0, 3, Q("5.5 mm")),
])
pad24 = body28.newObject("PartDesign::Pad", "Pad023")
pad24.Profile = sketch24
pad24.Length = 10
body29 = doc.addObject("PartDesign::Body", "Body028")
body29.AllowCompound = True

sketch25 = body29.newObject("Sketcher::SketchObject", "Sketch024")
sketch25.AttachmentSupport = (doc.getObject("YZ_Plane028"), [""])
sketch25.MapMode = "FlatFace"
sketch25.AttachmentOffset = App.Placement(V(0, 0, 13), App.Rotation())
sketch25.addGeometry(Part.Circle(V(15.5, 36.5, 0), V(0, 0, 1), 1.65), False)
sketch25.addConstraint([
    Sketcher.Constraint("Diameter", 0, Q("3.3 mm")),
    Sketcher.Constraint("DistanceX", -1, 1, 0, 3, Q("15.5 mm")),
    Sketcher.Constraint("DistanceY", -1, 1, 0, 3, Q("36.5 mm")),
])
pad25 = body29.newObject("PartDesign::Pad", "Pad024")
pad25.Profile = sketch25
pad25.Length = 10
doc.recompute()

boolean13 = body29.newObject("PartDesign::Boolean", "Boolean012")
boolean13.Type = "Fuse"
boolean13.addObjects([body26])
doc.recompute()

boolean14 = body29.newObject("PartDesign::Boolean", "Boolean013")
boolean14.Type = "Fuse"
boolean14.addObjects([body27])
doc.recompute()

boolean15 = body29.newObject("PartDesign::Boolean", "Boolean014")
boolean15.Type = "Fuse"
boolean15.addObjects([body28])
body30 = doc.addObject("PartDesign::Body", "Body029")
body30.AllowCompound = True
doc.recompute()

body29.Placement = App.Placement(V(-16, 0, 0), App.Rotation(V(0, 0, 1), 0))
boolean16 = body30.newObject("PartDesign::Boolean", "Boolean015")
boolean16.Type = "Fuse"
boolean16.addObjects([body29])
body31 = doc.addObject("PartDesign::Body", "Body030")

sketch26 = body31.newObject("Sketcher::SketchObject", "Sketch025")
sketch26.AttachmentSupport = (doc.getObject("XY_Plane030"), [""])
sketch26.MapMode = "FlatFace"
sketch26.addGeometry([
    Part.LineSegment(V(0, 21, 0), V(0, -21, 0)),
    Part.LineSegment(V(0, -21, 0), V(6, -21, 0)),
    Part.LineSegment(V(6, -21, 0), V(6, 21, 0)),
    Part.LineSegment(V(6, 21, 0), V(0, 21, 0)),
], False)
sketch26.addConstraint([
    Sketcher.Constraint("Coincident", 0, 2, 1, 1),
    Sketcher.Constraint("Coincident", 1, 2, 2, 1),
    Sketcher.Constraint("Coincident", 2, 2, 3, 1),
    Sketcher.Constraint("Coincident", 3, 2, 0, 1),
    Sketcher.Constraint("Vertical", 0),
    Sketcher.Constraint("Horizontal", 1),
    Sketcher.Constraint("Vertical", 2),
    Sketcher.Constraint("Horizontal", 3),
    Sketcher.Constraint("Symmetric", 0, 2, 3, 2, -1, 1),
    Sketcher.Constraint("DistanceX", 1, 1, 1, 2, Q("6 mm")),
    Sketcher.Constraint("DistanceY", 0, 2, 0, 1, Q("42 mm")),
])
pad26 = body31.newObject("PartDesign::Pad", "Pad025")
pad26.Profile = sketch26
pad26.Length = 42
doc.recompute()

chamfer5 = body31.newObject("PartDesign::Chamfer", "Chamfer004")
chamfer5.Base = (pad26, edges_at(pad26, [(3, -21, 42), (3, 21, 42)]))
chamfer5.Size = 3
doc.recompute()

boolean17 = body31.newObject("PartDesign::Boolean", "Boolean016")
boolean17.Type = "Cut"
boolean17.addObjects([body30])
doc.recompute()

boolean18 = body31.newObject("PartDesign::Boolean", "Boolean017")
boolean18.Type = "Cut"
boolean18.addObjects([body25])
doc.recompute()

boolean19 = body31.newObject("PartDesign::Boolean", "Boolean018")
boolean19.Type = "Cut"
boolean19.addObjects([body24])
body32 = doc.addObject("PartDesign::Body", "Body031")

sketch27 = body32.newObject("Sketcher::SketchObject", "Sketch026")
sketch27.AttachmentSupport = (doc.getObject("XY_Plane031"), [""])
sketch27.MapMode = "FlatFace"
sketch27.addGeometry([
    Part.LineSegment(V(-4, 50.5, 0), V(-4, 21, 0)),
    Part.LineSegment(V(-4, 21, 0), V(6, 21, 0)),
    Part.LineSegment(V(6, 21, 0), V(6, 50.5, 0)),
    Part.LineSegment(V(6, 50.5, 0), V(-4, 50.5, 0)),
], False)
sketch27.addConstraint([
    Sketcher.Constraint("Coincident", 0, 2, 1, 1),
    Sketcher.Constraint("Coincident", 1, 2, 2, 1),
    Sketcher.Constraint("Coincident", 2, 2, 3, 1),
    Sketcher.Constraint("Coincident", 3, 2, 0, 1),
    Sketcher.Constraint("Vertical", 0),
    Sketcher.Constraint("Horizontal", 1),
    Sketcher.Constraint("Vertical", 2),
    Sketcher.Constraint("Horizontal", 3),
    Sketcher.Constraint("DistanceX", 1, 1, 1, 2, Q("10 mm")),
    Sketcher.Constraint("DistanceY", 0, 2, 0, 1, Q("29.5 mm")),
    Sketcher.Constraint("DistanceX", 0, 2, -1, 1, Q("4 mm")),
    Sketcher.Constraint("DistanceY", -1, 1, 0, 2, Q("21 mm")),
])
pad27 = body32.newObject("PartDesign::Pad", "Pad026")
pad27.Profile = sketch27
pad27.Length = 30
doc.recompute()

boolean20 = body32.newObject("PartDesign::Boolean", "Boolean019")
boolean20.Type = "Fuse"
boolean20.addObjects([body22])
doc.recompute()

boolean21 = body32.newObject("PartDesign::Boolean", "Boolean020")
boolean21.Type = "Fuse"
boolean21.addObjects([body23])
doc.recompute()

boolean22 = body32.newObject("PartDesign::Boolean", "Boolean021")
boolean22.Type = "Fuse"
boolean22.addObjects([body31])
doc.recompute()

chamfer6 = body32.newObject("PartDesign::Chamfer", "Chamfer005")
chamfer6.Base = (boolean22, edges_at(boolean22, [(1, 50.5, 30)]))
chamfer6.Size = 1
doc.recompute()

boolean23 = body32.newObject("PartDesign::Boolean", "Boolean022")
boolean23.Type = "Cut"
boolean23.addObjects([body20])
doc.recompute()

boolean24 = body32.newObject("PartDesign::Boolean", "Boolean023")
boolean24.Type = "Cut"
boolean24.addObjects([body19])
doc.recompute()

boolean25 = body32.newObject("PartDesign::Boolean", "Boolean024")
boolean25.Type = "Cut"
boolean25.addObjects([body18])
doc.recompute()

boolean26 = body32.newObject("PartDesign::Boolean", "Boolean025")
boolean26.Type = "Cut"
boolean26.addObjects([body17])
doc.recompute()

boolean27 = body32.newObject("PartDesign::Boolean", "Boolean026")
boolean27.Type = "Fuse"
boolean27.addObjects([body14])
doc.recompute()

boolean28 = body32.newObject("PartDesign::Boolean", "Boolean027")
boolean28.Type = "Cut"
boolean28.addObjects([body11])
doc.recompute()

chamfer7 = body32.newObject("PartDesign::Chamfer", "Chamfer006")
chamfer7.Base = (boolean28, edges_at(boolean28, [(-70, 46.5, -4), (-70, -21, -4)]))
chamfer7.Size = 5
doc.recompute()

boolean29 = body32.newObject("PartDesign::Boolean", "Boolean028")
boolean29.Type = "Cut"
boolean29.addObjects([body6])
doc.recompute()

boolean30 = body32.newObject("PartDesign::Boolean", "Boolean029")
boolean30.Type = "Cut"
boolean30.addObjects([body4])
doc.recompute()

boolean31 = body32.newObject("PartDesign::Boolean", "Boolean030")
boolean31.Type = "Cut"
boolean31.addObjects([body2])

doc.recompute()
